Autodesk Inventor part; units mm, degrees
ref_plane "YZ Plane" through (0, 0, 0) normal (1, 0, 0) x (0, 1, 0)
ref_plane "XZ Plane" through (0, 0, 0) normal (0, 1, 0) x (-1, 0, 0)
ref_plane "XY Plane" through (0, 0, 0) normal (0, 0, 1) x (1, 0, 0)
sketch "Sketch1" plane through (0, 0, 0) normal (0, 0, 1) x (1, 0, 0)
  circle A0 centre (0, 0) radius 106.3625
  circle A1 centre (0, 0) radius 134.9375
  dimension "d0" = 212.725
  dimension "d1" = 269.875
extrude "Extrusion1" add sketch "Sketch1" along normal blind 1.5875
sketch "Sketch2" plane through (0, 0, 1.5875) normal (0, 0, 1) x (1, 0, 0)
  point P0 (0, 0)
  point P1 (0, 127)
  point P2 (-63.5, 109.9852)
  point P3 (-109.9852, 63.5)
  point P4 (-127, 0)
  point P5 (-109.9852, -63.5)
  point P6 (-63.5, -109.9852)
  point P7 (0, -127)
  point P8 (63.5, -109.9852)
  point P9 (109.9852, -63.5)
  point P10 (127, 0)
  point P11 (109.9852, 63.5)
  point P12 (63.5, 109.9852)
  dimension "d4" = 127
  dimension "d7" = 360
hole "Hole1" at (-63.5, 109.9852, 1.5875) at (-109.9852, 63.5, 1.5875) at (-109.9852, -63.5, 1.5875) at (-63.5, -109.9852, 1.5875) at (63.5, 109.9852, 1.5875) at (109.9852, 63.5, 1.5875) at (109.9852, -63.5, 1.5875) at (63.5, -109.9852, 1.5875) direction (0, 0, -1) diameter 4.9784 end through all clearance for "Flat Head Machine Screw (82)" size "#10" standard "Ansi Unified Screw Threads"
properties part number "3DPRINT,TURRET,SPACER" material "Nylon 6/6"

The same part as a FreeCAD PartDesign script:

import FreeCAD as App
import Part
import Sketcher

V = App.Vector
Q = App.Units.Quantity

doc = App.newDocument("Part")
body = doc.addObject("PartDesign::Body", "Body")

# Sketch on XY plane
sketch1 = body.newObject("Sketcher::SketchObject", "Sketch")
sketch1.AttachmentSupport = (doc.getObject("XY_Plane"), [""])
sketch1.MapMode = "FlatFace"
sketch1.addGeometry(Part.Circle(V(0, 0, 0), V(0, 0, 1), 135), False)
sketch1.addGeometry(Part.Circle(V(0, 0, 0), V(0, 0, 1), 106), False)
sketch1.addConstraint(Sketcher.Constraint("Coincident", 0, 3, -1, 1))
sketch1.addConstraint(Sketcher.Constraint("Coincident", 1, 3, -1, 1))
sketch1.addConstraint(Sketcher.Constraint("Diameter", 0, Q("10.625 in")))
sketch1.addConstraint(Sketcher.Constraint("Diameter", 1, Q("8.375 in")))
pad1 = body.newObject("PartDesign::Pad", "Pad")
pad1.Profile = sketch1
pad1.Length = Q("0.0625 in")

# Sketch on XY plane
sketch2 = body.newObject("Sketcher::SketchObject", "Sketch001")
sketch2.AttachmentSupport = (doc.getObject("XY_Plane"), [""])
sketch2.MapMode = "FlatFace"
sketch2.AttachmentOffset = App.Placement(V(0, 0, 0.0625 * 25.4), App.Rotation())
sketch2.addGeometry(Part.Circle(V(-63.5, 110, 0), V(0, 0, 1), 2.5), False)
sketch2.addGeometry(Part.Circle(V(-110, 63.5, 0), V(0, 0, 1), 2.5), False)
sketch2.addGeometry(Part.Circle(V(-110, -63.5, 0), V(0, 0, 1), 2.5), False)
sketch2.addGeometry(Part.Circle(V(-63.5, -110, 0), V(0, 0, 1), 2.5), False)
sketch2.addGeometry(Part.Circle(V(63.5, 110, 0), V(0, 0, 1), 2.5), False)
sketch2.addGeometry(Part.Circle(V(110, 63.5, 0), V(0, 0, 1), 2.5), False)
sketch2.addGeometry(Part.Circle(V(110, -63.5, 0), V(0, 0, 1), 2.5), False)
sketch2.addGeometry(Part.Circle(V(63.5, -110, 0), V(0, 0, 1), 2.5), False)
sketch2.addConstraint(Sketcher.Constraint("Equal", 0, 1))
sketch2.addConstraint(Sketcher.Constraint("Equal", 1, 2))
sketch2.addConstraint(Sketcher.Constraint("Equal", 2, 3))
sketch2.addConstraint(Sketcher.Constraint("Equal", 3, 4))
sketch2.addConstraint(Sketcher.Constraint("Equal", 4, 5))
sketch2.addConstraint(Sketcher.Constraint("Equal", 5, 6))
sketch2.addConstraint(Sketcher.Constraint("Equal", 6, 7))
sketch2.addConstraint(Sketcher.Constraint("Symmetric", 3, 3, 4, 3, -1, 1))
sketch2.addConstraint(Sketcher.Constraint("Symmetric", 2, 3, 5, 3, -1, 1))
sketch2.addConstraint(Sketcher.Constraint("Symmetric", 1, 3, 6, 3, -1, 1))
sketch2.addConstraint(Sketcher.Constraint("Symmetric", 0, 3, 7, 3, -1, 1))
sketch2.addConstraint(Sketcher.Constraint("Symmetric", 0, 3, 4, 3, -2))
sketch2.addConstraint(Sketcher.Constraint("Symmetric", 1, 3, 5, 3, -2))
sketch2.addConstraint(Sketcher.Constraint("Diameter", 0, Q("0.196 in")))
sketch2.addConstraint(Sketcher.Constraint("DistanceY", 2, 3, 1, 3, Q("5 in")))
sketch2.addConstraint(Sketcher.Constraint("DistanceX", 0, 3, 4, 3, Q("5 in")))
sketch2.addConstraint(Sketcher.Constraint("DistanceY", -1, 1, 0, 3, Q("109.9852 mm")))
sketch2.addConstraint(Sketcher.Constraint("DistanceX", 1, 3, -1, 1, Q("109.9852 mm")))
doc.recompute()
hole = body.newObject("PartDesign::Hole", "Hole")
hole.Profile = sketch2
hole.ThreadType = "None"
hole.Diameter = Q("0.196 in")
hole.DepthType = "ThroughAll"

doc.recompute()
